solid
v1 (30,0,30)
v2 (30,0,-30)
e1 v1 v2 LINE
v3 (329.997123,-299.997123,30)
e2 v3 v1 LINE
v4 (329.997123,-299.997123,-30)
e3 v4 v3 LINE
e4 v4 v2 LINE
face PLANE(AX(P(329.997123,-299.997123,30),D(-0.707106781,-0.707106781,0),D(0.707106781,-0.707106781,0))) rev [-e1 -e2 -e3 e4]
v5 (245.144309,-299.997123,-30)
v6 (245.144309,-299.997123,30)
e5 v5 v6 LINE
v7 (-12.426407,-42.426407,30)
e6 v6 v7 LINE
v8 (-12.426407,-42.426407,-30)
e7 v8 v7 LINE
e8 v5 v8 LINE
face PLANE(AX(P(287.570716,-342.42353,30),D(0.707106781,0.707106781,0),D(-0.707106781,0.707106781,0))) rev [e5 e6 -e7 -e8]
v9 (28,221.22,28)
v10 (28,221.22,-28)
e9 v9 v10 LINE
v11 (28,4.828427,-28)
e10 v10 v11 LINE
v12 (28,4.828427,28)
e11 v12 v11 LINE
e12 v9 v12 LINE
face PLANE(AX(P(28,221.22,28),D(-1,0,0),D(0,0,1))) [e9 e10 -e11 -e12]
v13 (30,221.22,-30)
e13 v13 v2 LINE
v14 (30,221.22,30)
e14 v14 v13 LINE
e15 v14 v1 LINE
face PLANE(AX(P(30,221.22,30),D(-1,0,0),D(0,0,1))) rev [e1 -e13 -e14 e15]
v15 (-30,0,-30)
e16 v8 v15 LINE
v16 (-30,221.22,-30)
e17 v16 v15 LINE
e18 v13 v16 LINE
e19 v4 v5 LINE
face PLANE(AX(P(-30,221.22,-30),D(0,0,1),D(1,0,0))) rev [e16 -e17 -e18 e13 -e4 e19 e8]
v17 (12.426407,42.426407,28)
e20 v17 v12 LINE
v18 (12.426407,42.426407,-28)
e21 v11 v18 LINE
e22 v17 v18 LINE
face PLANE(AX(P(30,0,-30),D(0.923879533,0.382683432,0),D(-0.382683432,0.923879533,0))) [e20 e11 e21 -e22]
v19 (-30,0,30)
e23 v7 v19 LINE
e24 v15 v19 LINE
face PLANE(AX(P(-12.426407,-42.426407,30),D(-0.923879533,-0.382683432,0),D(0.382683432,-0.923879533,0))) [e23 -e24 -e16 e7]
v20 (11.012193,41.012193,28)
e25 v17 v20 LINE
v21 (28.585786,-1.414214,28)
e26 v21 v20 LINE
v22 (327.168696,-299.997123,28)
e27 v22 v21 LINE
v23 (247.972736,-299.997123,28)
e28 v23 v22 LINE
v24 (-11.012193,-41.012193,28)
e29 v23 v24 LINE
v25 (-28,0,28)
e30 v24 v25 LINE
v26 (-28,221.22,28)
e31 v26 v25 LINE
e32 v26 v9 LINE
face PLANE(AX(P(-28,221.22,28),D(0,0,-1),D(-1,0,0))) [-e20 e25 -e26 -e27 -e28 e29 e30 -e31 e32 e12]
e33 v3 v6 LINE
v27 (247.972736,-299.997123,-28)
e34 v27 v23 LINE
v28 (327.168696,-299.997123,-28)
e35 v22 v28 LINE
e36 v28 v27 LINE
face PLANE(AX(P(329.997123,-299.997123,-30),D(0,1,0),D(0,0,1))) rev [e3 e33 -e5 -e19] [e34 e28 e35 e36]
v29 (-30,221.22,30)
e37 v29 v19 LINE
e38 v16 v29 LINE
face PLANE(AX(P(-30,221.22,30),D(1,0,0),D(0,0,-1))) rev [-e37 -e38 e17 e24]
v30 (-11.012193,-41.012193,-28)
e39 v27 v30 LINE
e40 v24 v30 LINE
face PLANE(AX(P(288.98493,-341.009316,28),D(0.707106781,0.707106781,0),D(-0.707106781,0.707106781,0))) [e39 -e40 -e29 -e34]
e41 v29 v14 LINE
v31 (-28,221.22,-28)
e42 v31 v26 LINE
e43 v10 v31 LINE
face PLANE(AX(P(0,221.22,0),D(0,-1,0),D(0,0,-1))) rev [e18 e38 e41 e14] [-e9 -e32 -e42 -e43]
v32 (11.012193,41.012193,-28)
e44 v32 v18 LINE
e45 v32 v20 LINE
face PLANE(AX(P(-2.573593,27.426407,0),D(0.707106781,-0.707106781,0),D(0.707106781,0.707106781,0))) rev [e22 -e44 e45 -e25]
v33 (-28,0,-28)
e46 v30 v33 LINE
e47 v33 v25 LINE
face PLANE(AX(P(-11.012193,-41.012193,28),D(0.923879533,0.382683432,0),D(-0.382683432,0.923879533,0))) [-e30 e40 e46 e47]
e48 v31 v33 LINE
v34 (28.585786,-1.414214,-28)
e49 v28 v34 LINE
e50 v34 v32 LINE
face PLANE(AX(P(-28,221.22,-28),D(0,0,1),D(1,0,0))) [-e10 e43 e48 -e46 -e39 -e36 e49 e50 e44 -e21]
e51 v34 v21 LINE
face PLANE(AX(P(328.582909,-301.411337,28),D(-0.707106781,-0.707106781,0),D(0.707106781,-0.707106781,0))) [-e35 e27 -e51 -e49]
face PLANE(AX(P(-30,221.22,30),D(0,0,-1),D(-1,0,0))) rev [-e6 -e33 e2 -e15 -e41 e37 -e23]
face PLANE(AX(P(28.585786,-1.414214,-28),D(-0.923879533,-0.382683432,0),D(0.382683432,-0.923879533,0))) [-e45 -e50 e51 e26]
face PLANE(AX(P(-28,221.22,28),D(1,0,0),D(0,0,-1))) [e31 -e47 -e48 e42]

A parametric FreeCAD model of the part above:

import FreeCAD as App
import Part
import Sketcher
from FreeCAD import Vector
Q = App.Units.Quantity

doc = App.newDocument("Part")
body = doc.addObject("PartDesign::Body", "Body")

sketch1 = doc.addObject("Sketcher::SketchObject", "Sketch")
body.addObject(sketch1)
sketch1.AttachmentSupport = (doc.XZ_Plane, [""])
sketch1.MapMode = "FlatFace"
sketch1.addGeometry([
    Part.LineSegment(Vector(-30, -30, 0), Vector(-30, 30, 0)),
    Part.LineSegment(Vector(-30, 30, 0), Vector(30, 30, 0)),
    Part.LineSegment(Vector(30, 30, 0), Vector(30, -30, 0)),
    Part.LineSegment(Vector(30, -30, 0), Vector(-30, -30, 0)),
    Part.LineSegment(Vector(28, 28, 0), Vector(-28, 28, 0)),
    Part.LineSegment(Vector(-28, 28, 0), Vector(-28, -28, 0)),
    Part.LineSegment(Vector(-28, -28, 0), Vector(28, -28, 0)),
    Part.LineSegment(Vector(28, -28, 0), Vector(28, 28, 0)),
], False)
sketch1.addConstraint([
    Sketcher.Constraint("Coincident", 0, 2, 1, 1),
    Sketcher.Constraint("Coincident", 1, 2, 2, 1),
    Sketcher.Constraint("Coincident", 2, 2, 3, 1),
    Sketcher.Constraint("Coincident", 3, 2, 0, 1),
    Sketcher.Constraint("Coincident", 4, 2, 5, 1),
    Sketcher.Constraint("Coincident", 5, 2, 6, 1),
    Sketcher.Constraint("Coincident", 6, 2, 7, 1),
    Sketcher.Constraint("Coincident", 7, 2, 4, 1),
    Sketcher.Constraint("Vertical", 0),
    Sketcher.Constraint("Horizontal", 1),
    Sketcher.Constraint("Vertical", 2),
    Sketcher.Constraint("Horizontal", 3),
    Sketcher.Constraint("Horizontal", 4),
    Sketcher.Constraint("Vertical", 5),
    Sketcher.Constraint("Horizontal", 6),
    Sketcher.Constraint("Vertical", 7),
    Sketcher.Constraint("Symmetric", 0, 2, 2, 2, -1, 1),
    Sketcher.Constraint("Symmetric", 4, 2, 6, 2, -1, 1),
    Sketcher.Constraint("Equal", 3, 0),
    Sketcher.Constraint("Equal", 6, 5),
    Sketcher.Constraint("DistanceX", 1, 1, 1, 2, Q("60 mm")),
    Sketcher.Constraint("DistanceX", 4, 2, 4, 1, Q("56 mm")),
])
pad1 = doc.addObject("PartDesign::Pad", "Pad")
body.addObject(pad1)
pad1.Profile = sketch1
pad1.Length = 221.22
pad1.Reversed = True
body2 = doc.addObject("PartDesign::Body", "Body001")

sketch2 = doc.addObject("Sketcher::SketchObject", "Sketch001")
body2.addObject(sketch2)
sketch2.Placement = App.Placement(Vector(15, -15, 0), App.Rotation(Vector(0, 0, -1), Vector(0.707106781, 0.707106781, 0), Vector(0.707106781, -0.707106781, 0), "ZXY"))
sketch2.addGeometry([
    Part.LineSegment(Vector(-30, 21, 0), Vector(-30, -39, 0)),
    Part.LineSegment(Vector(-30, -39, 0), Vector(30, -39, 0)),
    Part.LineSegment(Vector(30, -39, 0), Vector(30, 21, 0)),
    Part.LineSegment(Vector(30, 21, 0), Vector(-30, 21, 0)),
    Part.LineSegment(Vector(28, -37, 0), Vector(-28, -37, 0)),
    Part.LineSegment(Vector(-28, -37, 0), Vector(-28, 19, 0)),
    Part.LineSegment(Vector(-28, 19, 0), Vector(28, 19, 0)),
    Part.LineSegment(Vector(28, 19, 0), Vector(28, -37, 0)),
], False)
sketch2.addConstraint([
    Sketcher.Constraint("Coincident", 0, 2, 1, 1),
    Sketcher.Constraint("Coincident", 1, 2, 2, 1),
    Sketcher.Constraint("Coincident", 2, 2, 3, 1),
    Sketcher.Constraint("Coincident", 3, 2, 0, 1),
    Sketcher.Constraint("Coincident", 4, 2, 5, 1),
    Sketcher.Constraint("Coincident", 5, 2, 6, 1),
    Sketcher.Constraint("Coincident", 6, 2, 7, 1),
    Sketcher.Constraint("Coincident", 7, 2, 4, 1),
    Sketcher.Constraint("Vertical", 0),
    Sketcher.Constraint("Horizontal", 1),
    Sketcher.Constraint("Vertical", 2),
    Sketcher.Constraint("Horizontal", 3),
    Sketcher.Constraint("Horizontal", 4),
    Sketcher.Constraint("Vertical", 5),
    Sketcher.Constraint("Horizontal", 6),
    Sketcher.Constraint("Vertical", 7),
    Sketcher.Constraint("Equal", 3, 0),
    Sketcher.Constraint("Equal", 6, 5),
    Sketcher.Constraint("DistanceX", 1, 1, 1, 2, Q("60 mm")),
    Sketcher.Constraint("DistanceX", 4, 2, 4, 1, Q("56 mm")),
    Sketcher.Constraint("DistanceX", 0, 2, -1, 1, Q("30 mm")),
    Sketcher.Constraint("DistanceX", 4, 2, -1, 1, Q("28 mm")),
    Sketcher.Constraint("DistanceY", 0, 2, 4, 2, Q("2 mm")),
    Sketcher.Constraint("DistanceY", 0, 2, -1, 1, Q("38.786797 mm")),
])
pad2 = doc.addObject("PartDesign::Pad", "Pad001")
body2.addObject(pad2)
pad2.Profile = sketch2
pad2.Length = 424.26

sketch3 = doc.addObject("Sketcher::SketchObject", "Sketch002")
body2.addObject(sketch3)
sketch3.AttachmentSupport = (doc.getObject("XY_Plane001"), [""])
sketch3.MapMode = "FlatFace"
sketch3.AttachmentOffset = App.Placement(Vector(0, 0, 30), App.Rotation())
sketch3.addGeometry([
    Part.LineSegment(Vector(288, -342, 0), Vector(330, -300, 0)),
    Part.LineSegment(Vector(330, -300, 0), Vector(245, -300, 0)),
    Part.LineSegment(Vector(245, -300, 0), Vector(288, -342, 0)),
], False)
sketch3.addConstraint([
    Sketcher.Constraint("Coincident", 0, 2, 1, 1),
    Sketcher.Constraint("Coincident", 1, 2, 2, 1),
    Sketcher.Constraint("Coincident", 2, 2, 0, 1),
    Sketcher.Constraint("Horizontal", 1),
    Sketcher.Constraint("Perpendicular", 0, 2),
    Sketcher.Constraint("Equal", 0, 2),
    Sketcher.Constraint("Distance", 0, Q("60 mm")),
    Sketcher.Constraint("DistanceX", -1, 1, 1, 2, Q("245.144309 mm")),
    Sketcher.Constraint("DistanceY", 2, 2, -1, 1, Q("342.42353 mm")),
])
pocket1 = doc.addObject("PartDesign::Pocket", "Pocket")
body2.addObject(pocket1)
pocket1.Profile = sketch3
pocket1.Type = "ThroughAll"
body.AllowCompound = True
doc.recompute()

boolean = doc.addObject("PartDesign::Boolean", "Boolean")
body.addObject(boolean)
boolean.Type = "Fuse"
boolean.addObjects([body2])

sketch4 = doc.addObject("Sketcher::SketchObject", "Sketch003")
body.addObject(sketch4)
sketch4.Placement = App.Placement(Vector(15, -15, 0), App.Rotation(Vector(0, 0, 1), Vector(0.707106781, 0.707106781, 0), Vector(-0.707106781, 0.707106781, 0), "ZXY"))
sketch4.addGeometry([
    Part.LineSegment(Vector(-30, 21, 0), Vector(-30, -39, 0)),
    Part.LineSegment(Vector(-30, -39, 0), Vector(30, -39, 0)),
    Part.LineSegment(Vector(30, -39, 0), Vector(30, 21, 0)),
    Part.LineSegment(Vector(30, 21, 0), Vector(-30, 21, 0)),
    Part.LineSegment(Vector(28, -37, 0), Vector(-28, -37, 0)),
    Part.LineSegment(Vector(-28, -37, 0), Vector(-28, 19, 0)),
    Part.LineSegment(Vector(-28, 19, 0), Vector(28, 19, 0)),
    Part.LineSegment(Vector(28, 19, 0), Vector(28, -37, 0)),
], False)
sketch4.addConstraint([
    Sketcher.Constraint("Coincident", 0, 2, 1, 1),
    Sketcher.Constraint("Coincident", 1, 2, 2, 1),
    Sketcher.Constraint("Coincident", 2, 2, 3, 1),
    Sketcher.Constraint("Coincident", 3, 2, 0, 1),
    Sketcher.Constraint("Coincident", 4, 2, 5, 1),
    Sketcher.Constraint("Coincident", 5, 2, 6, 1),
    Sketcher.Constraint("Coincident", 6, 2, 7, 1),
    Sketcher.Constraint("Coincident", 7, 2, 4, 1),
    Sketcher.Constraint("Vertical", 0),
    Sketcher.Constraint("Horizontal", 1),
    Sketcher.Constraint("Vertical", 2),
    Sketcher.Constraint("Horizontal", 3),
    Sketcher.Constraint("Horizontal", 4),
    Sketcher.Constraint("Vertical", 5),
    Sketcher.Constraint("Horizontal", 6),
    Sketcher.Constraint("Vertical", 7),
    Sketcher.Constraint("Equal", 3, 0),
    Sketcher.Constraint("Equal", 6, 5),
    Sketcher.Constraint("DistanceX", 1, 1, 1, 2, Q("60 mm")),
    Sketcher.Constraint("DistanceX", 4, 2, 4, 1, Q("56 mm")),
    Sketcher.Constraint("DistanceX", 0, 2, -1, 1, Q("30 mm")),
    Sketcher.Constraint("DistanceX", 4, 2, -1, 1, Q("28 mm")),
    Sketcher.Constraint("DistanceY", 0, 2, 4, 2, Q("2 mm")),
    Sketcher.Constraint("DistanceY", 0, 2, -1, 1, Q("38.786797 mm")),
])

sketch5 = doc.addObject("Sketcher::SketchObject", "Sketch004")
body.addObject(sketch5)
sketch5.Placement = App.Placement(Vector(-25.606602, -10.606602, 0), App.Rotation(Vector(-0.382683432, 0.923879533, 0), Vector(0, 0, 1.000000001), Vector(0.923879533, 0.382683432, 0), "ZXY"))
sketch5.addGeometry(Part.LineSegment(Vector(-34, 30, 0), Vector(11, 30, 0)), False)
sketch5.addConstraint([
    Sketcher.Constraint("Horizontal", 0),
    Sketcher.Constraint("DistanceY", -1, 1, 0, 1, Q("30 mm")),
    Sketcher.Constraint("DistanceX", 0, 1, 0, 2, Q("45.922012 mm")),
    Sketcher.Constraint("DistanceX", 0, 1, -1, 1, Q("34.441509 mm")),
])
doc.recompute()

additivepipe = doc.addObject("PartDesign::AdditivePipe", "AdditivePipe")
body.addObject(additivepipe)
additivepipe.Profile = sketch4
additivepipe.Spine = (sketch5, ["Edge1"])

doc.recompute()
